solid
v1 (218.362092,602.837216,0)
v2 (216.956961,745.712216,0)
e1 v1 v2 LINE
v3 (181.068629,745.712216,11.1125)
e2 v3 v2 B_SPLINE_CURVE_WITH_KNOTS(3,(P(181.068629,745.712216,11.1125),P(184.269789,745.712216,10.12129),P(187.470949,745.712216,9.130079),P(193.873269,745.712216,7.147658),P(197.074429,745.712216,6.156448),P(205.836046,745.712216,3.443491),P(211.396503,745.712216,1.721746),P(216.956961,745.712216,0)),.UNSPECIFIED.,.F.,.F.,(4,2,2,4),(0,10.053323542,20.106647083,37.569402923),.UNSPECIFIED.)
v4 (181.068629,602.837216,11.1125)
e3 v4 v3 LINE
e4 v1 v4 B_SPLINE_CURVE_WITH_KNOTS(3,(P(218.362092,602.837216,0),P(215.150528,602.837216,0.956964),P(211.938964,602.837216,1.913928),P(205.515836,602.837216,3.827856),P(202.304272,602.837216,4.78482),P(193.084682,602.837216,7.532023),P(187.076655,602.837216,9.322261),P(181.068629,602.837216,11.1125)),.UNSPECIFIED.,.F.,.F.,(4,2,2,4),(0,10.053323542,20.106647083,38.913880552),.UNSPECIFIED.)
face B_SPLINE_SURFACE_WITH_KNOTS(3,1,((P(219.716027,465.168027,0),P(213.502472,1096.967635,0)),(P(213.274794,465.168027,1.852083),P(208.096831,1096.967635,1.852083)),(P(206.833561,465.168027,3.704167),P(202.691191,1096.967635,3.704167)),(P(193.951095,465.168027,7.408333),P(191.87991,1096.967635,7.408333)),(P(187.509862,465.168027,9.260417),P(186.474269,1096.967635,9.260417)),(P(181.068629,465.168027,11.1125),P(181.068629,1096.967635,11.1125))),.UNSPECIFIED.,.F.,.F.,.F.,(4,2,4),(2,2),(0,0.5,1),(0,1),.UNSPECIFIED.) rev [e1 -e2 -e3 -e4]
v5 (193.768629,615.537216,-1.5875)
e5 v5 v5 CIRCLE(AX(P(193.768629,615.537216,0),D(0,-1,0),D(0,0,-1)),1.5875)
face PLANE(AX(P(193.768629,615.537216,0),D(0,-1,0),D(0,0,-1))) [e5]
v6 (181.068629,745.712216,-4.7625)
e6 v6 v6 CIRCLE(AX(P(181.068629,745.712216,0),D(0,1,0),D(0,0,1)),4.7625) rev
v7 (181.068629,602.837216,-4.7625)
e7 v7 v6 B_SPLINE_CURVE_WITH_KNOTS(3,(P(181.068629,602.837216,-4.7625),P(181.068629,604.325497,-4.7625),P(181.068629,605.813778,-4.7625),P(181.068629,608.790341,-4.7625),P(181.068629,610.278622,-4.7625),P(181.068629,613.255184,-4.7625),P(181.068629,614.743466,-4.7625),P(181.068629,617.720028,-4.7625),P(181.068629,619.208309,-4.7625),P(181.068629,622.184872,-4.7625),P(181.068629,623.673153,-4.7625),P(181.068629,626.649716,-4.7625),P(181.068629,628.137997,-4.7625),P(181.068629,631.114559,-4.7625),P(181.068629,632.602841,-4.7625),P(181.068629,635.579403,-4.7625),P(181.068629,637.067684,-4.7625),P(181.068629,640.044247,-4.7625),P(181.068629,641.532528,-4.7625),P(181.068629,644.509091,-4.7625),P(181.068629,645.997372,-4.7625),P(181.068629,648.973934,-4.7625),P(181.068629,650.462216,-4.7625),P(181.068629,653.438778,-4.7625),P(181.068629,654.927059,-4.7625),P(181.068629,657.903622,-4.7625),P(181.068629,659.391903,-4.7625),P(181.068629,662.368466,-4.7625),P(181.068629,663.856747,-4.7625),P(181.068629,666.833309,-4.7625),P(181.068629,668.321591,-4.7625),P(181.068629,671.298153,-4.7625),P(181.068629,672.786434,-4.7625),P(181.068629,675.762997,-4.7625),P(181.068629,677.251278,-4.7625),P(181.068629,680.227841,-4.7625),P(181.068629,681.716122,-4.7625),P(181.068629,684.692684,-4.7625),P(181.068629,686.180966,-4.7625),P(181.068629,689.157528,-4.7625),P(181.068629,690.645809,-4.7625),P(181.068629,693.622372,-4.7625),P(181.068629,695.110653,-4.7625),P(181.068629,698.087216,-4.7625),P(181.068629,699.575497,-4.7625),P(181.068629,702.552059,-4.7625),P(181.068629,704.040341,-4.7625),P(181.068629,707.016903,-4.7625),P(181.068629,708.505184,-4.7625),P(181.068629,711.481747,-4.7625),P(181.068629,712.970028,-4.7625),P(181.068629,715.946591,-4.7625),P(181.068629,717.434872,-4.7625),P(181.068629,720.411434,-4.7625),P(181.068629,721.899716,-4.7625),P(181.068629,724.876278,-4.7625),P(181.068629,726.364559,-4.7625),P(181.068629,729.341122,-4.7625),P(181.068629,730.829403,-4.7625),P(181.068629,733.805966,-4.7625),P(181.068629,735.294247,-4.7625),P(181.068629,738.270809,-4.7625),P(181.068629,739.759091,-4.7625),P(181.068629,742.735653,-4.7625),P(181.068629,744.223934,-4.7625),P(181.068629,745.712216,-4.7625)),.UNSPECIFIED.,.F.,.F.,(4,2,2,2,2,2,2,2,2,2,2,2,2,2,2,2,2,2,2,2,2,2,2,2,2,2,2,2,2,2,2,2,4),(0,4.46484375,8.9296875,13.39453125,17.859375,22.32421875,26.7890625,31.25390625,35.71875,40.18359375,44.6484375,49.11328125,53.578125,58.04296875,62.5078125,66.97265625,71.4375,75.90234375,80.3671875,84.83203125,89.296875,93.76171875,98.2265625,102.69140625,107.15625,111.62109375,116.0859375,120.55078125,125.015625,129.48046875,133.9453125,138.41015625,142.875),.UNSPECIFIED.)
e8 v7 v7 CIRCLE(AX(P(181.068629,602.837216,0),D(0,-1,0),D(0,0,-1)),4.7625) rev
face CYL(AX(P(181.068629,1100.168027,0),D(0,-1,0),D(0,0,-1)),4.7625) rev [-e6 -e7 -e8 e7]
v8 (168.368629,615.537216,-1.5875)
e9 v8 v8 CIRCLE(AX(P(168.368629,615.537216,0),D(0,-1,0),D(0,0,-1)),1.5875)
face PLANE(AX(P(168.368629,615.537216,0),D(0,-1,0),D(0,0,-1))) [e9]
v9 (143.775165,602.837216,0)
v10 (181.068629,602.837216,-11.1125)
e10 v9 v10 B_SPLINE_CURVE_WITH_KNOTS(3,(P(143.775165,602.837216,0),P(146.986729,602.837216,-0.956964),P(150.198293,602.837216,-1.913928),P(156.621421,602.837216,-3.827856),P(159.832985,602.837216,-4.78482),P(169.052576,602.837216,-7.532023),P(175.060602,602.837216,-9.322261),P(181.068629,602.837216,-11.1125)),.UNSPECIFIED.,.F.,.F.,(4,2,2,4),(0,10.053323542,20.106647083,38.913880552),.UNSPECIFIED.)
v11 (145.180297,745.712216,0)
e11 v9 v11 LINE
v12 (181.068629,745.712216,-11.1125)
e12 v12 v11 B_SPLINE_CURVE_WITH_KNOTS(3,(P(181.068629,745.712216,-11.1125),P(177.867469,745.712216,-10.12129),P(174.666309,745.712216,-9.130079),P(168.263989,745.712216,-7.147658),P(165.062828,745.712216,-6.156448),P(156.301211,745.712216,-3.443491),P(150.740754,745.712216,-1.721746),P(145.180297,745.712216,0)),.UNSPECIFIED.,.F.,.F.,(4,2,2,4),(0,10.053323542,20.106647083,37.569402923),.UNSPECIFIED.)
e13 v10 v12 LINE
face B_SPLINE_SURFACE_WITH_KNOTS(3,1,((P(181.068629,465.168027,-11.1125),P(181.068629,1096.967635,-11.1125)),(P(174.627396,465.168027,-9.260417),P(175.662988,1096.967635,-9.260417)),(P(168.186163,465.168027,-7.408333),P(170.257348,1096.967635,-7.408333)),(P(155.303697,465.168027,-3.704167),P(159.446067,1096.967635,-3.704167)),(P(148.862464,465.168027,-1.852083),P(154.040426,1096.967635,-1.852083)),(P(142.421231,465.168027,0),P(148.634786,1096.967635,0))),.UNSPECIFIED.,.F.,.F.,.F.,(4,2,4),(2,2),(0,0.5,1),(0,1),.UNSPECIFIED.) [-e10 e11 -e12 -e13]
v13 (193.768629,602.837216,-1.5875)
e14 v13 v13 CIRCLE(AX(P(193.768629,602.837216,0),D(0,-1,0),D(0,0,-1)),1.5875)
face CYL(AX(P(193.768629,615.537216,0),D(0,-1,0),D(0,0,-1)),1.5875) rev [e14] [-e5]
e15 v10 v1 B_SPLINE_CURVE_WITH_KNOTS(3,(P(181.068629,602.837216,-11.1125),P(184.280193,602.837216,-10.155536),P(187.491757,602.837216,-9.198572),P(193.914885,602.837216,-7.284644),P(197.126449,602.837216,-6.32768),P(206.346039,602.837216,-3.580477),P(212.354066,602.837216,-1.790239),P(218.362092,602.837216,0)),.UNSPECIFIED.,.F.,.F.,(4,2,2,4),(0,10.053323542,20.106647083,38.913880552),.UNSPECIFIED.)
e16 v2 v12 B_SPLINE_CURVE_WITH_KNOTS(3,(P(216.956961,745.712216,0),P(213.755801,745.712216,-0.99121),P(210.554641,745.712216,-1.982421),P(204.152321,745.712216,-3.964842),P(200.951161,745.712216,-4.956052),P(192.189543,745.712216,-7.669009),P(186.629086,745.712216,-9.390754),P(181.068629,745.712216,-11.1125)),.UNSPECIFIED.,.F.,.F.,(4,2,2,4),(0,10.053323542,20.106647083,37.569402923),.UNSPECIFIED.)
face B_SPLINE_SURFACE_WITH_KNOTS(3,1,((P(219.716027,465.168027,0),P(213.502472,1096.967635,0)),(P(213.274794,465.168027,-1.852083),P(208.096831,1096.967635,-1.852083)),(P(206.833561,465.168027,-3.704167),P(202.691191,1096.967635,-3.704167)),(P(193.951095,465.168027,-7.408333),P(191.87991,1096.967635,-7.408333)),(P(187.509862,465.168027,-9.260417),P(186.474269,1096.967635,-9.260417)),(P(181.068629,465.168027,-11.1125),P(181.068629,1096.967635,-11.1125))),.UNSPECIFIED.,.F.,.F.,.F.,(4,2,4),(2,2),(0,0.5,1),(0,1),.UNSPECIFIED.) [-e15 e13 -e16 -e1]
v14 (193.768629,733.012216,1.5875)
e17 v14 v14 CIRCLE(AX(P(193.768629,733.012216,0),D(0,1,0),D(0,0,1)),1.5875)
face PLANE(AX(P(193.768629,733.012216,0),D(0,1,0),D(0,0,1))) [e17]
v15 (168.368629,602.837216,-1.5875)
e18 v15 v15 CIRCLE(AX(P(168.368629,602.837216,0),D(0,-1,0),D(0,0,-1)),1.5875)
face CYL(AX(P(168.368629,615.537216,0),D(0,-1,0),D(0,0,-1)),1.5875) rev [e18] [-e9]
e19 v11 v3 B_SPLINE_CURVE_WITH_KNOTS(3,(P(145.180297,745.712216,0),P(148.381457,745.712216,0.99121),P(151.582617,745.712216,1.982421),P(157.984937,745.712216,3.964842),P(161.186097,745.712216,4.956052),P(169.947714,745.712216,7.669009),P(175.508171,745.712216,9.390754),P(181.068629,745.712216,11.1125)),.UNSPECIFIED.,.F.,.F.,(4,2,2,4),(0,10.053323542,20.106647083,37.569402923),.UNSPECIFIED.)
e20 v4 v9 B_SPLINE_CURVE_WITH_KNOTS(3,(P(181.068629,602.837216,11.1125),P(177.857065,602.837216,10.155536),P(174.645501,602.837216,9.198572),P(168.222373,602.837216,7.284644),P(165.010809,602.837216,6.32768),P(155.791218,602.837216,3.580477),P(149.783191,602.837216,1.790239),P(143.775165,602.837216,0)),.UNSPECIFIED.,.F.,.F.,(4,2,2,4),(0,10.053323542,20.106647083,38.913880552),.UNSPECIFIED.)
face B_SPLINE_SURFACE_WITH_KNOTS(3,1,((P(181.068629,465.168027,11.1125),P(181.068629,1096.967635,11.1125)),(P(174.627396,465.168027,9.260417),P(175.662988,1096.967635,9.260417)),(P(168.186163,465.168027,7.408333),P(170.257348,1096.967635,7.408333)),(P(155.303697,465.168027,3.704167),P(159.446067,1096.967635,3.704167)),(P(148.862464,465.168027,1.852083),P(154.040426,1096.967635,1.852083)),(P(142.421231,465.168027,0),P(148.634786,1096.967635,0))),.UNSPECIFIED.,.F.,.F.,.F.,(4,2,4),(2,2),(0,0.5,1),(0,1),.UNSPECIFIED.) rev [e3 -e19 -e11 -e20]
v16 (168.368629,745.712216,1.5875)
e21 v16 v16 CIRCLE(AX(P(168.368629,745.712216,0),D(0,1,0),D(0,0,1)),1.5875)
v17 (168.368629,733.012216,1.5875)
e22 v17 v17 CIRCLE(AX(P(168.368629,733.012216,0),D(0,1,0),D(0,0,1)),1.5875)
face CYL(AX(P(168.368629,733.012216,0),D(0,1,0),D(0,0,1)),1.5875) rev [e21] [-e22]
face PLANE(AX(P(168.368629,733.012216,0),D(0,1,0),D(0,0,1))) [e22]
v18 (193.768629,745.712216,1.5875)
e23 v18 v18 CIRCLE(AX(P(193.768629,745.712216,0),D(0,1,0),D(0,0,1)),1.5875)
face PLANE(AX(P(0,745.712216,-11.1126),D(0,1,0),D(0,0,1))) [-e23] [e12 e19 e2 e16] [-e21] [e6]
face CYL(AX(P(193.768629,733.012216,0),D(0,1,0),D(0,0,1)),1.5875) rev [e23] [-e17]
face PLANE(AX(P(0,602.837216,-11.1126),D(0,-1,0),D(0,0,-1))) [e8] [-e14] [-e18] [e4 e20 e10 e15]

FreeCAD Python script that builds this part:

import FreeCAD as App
import Part
import Sketcher
from FreeCAD import Vector
Q = App.Units.Quantity


def add_polygon(sketch, points):
    """Adds a closed chain of lines whose ends are joined by coincident constraints."""
    first, n = sketch.GeometryCount, len(points)
    for a, b in zip(points, points[1:] + points[:1]):
        sketch.addGeometry(Part.LineSegment(App.Vector(*a, 0), App.Vector(*b, 0)), False)
    for i in range(n):
        sketch.addConstraint(Sketcher.Constraint("Coincident", first + i, 2, first + (i + 1) % n, 1))

doc = App.newDocument("Part")
body = doc.addObject("PartDesign::Body", "Body")

sketch1 = doc.addObject("Sketcher::SketchObject", "Sketch")
body.addObject(sketch1)
sketch1.AttachmentSupport = (doc.XY_Plane, [""])
sketch1.MapMode = "FlatFace"
add_polygon(sketch1, [(142, 465), (220, 465), (214, 1097), (181, 1174), (149, 1097)])
sketch1.addConstraint(Sketcher.Constraint("Horizontal", 0))
sketch1.addConstraint(Sketcher.Constraint("Horizontal", 1, 2, 3, 2))
sketch1.addConstraint(Sketcher.Constraint("Equal", 2, 3))
sketch1.addConstraint(Sketcher.Constraint("Equal", 1, 4))
sketch1.addConstraint(Sketcher.Constraint("Distance", 1, 631.830161))
sketch1.addConstraint(Sketcher.Constraint("DistanceX", 0, 1, 0, 2, 77.294796))
sketch1.addConstraint(Sketcher.Constraint("DistanceX", -1, 1, 1, 2, 213.502472))
sketch1.addConstraint(Sketcher.Constraint("DistanceX", -1, 1, 2, 2, 181.068629))
sketch1.addConstraint(Sketcher.Constraint("DistanceY", 1, 2, 2, 2, 77.369581))
sketch1.addConstraint(Sketcher.Constraint("DistanceY", -1, 1, 0, 2, 465.168027))
pad1 = doc.addObject("PartDesign::Pad", "Pad")
body.addObject(pad1)
pad1.Profile = sketch1
pad1.Type = "TwoLengths"
pad1.Length = Q("0.4375 in")
pad1.Length2 = Q("0.4375 in")

sketch2 = doc.addObject("Sketcher::SketchObject", "Sketch001")
body.addObject(sketch2)
sketch2.AttachmentSupport = (doc.XZ_Plane, [""])
sketch2.MapMode = "FlatFace"
sketch2.AttachmentOffset = App.Placement(Vector(0, 0, -465.168027), App.Rotation())
add_polygon(sketch2, [(142.4, 0), (181.1, 11.1), (219.7, 0), (222.7, 0), (222.7, 15.3), (137.8, 15.3), (137.8, 0)])
sketch2.addConstraint(Sketcher.Constraint("Horizontal", 2))
sketch2.addConstraint(Sketcher.Constraint("Vertical", 3))
sketch2.addConstraint(Sketcher.Constraint("Horizontal", 4))
sketch2.addConstraint(Sketcher.Constraint("Vertical", 5))
sketch2.addConstraint(Sketcher.Constraint("Horizontal", 6))
sketch2.addConstraint(Sketcher.Constraint("PointOnObject", 1, 2, -1))
sketch2.addConstraint(Sketcher.Constraint("PointOnObject", 5, 2, -1))
sketch2.addConstraint(Sketcher.Constraint("Equal", 0, 1))
sketch2.addConstraint(Sketcher.Constraint("DistanceY", -1, 1, 0, 2, Q("0.4375 in")))
sketch2.addConstraint(Sketcher.Constraint("DistanceX", 2, 1, 2, 2, 2.989111))
sketch2.addConstraint(Sketcher.Constraint("DistanceX", 4, 2, 4, 1, 84.85651))
sketch2.addConstraint(Sketcher.Constraint("DistanceX", 4, 2, 0, 2, 43.22))
sketch2.addConstraint(Sketcher.Constraint("DistanceY", 3, 1, 3, 2, 15.258366))
sketch2.addConstraint(Sketcher.Constraint("DistanceX", -1, 1, 0, 2, 181.068629))

sketch3 = doc.addObject("Sketcher::SketchObject", "Sketch002")
body.addObject(sketch3)
sketch3.AttachmentSupport = (doc.XZ_Plane, [""])
sketch3.MapMode = "FlatFace"
sketch3.AttachmentOffset = App.Placement(Vector(0, 0, -1096.967635), App.Rotation())
add_polygon(sketch3, [(214, 0), (181, 11), (149, 0), (138, 0), (138, 15), (223, 15), (223, 0)])
sketch3.addConstraint(Sketcher.Constraint("Horizontal", 2))
sketch3.addConstraint(Sketcher.Constraint("Vertical", 3))
sketch3.addConstraint(Sketcher.Constraint("Horizontal", 4))
sketch3.addConstraint(Sketcher.Constraint("Vertical", 5))
sketch3.addConstraint(Sketcher.Constraint("Horizontal", 6))
sketch3.addConstraint(Sketcher.Constraint("PointOnObject", 1, 2, -1))
sketch3.addConstraint(Sketcher.Constraint("PointOnObject", 5, 2, -1))
sketch3.addConstraint(Sketcher.Constraint("Equal", 0, 1))
sketch3.addConstraint(Sketcher.Constraint("DistanceY", -1, 1, 0, 2, Q("0.4375 in")))
sketch3.addConstraint(Sketcher.Constraint("DistanceX", 4, 1, 4, 2, 84.85651))
sketch3.addConstraint(Sketcher.Constraint("DistanceX", 2, 2, 0, 2, 43.22))
sketch3.addConstraint(Sketcher.Constraint("DistanceX", 2, 2, 2, 1, 10.786158))
sketch3.addConstraint(Sketcher.Constraint("DistanceY", 3, 1, 3, 2, 15.258366))
sketch3.addConstraint(Sketcher.Constraint("DistanceX", -1, 1, 0, 2, 181.068629))

subtractiveloft = doc.addObject("PartDesign::SubtractiveLoft", "SubtractiveLoft")
body.addObject(subtractiveloft)
subtractiveloft.Profile = sketch2
subtractiveloft.Sections = [sketch3]
doc.recompute()

mirrored = doc.addObject("PartDesign::Mirrored", "Mirrored")
body.addObject(mirrored)
mirrored.Originals = [subtractiveloft]
mirrored.MirrorPlane = (doc.XY_Plane, [""])
body.Tip = mirrored

sketch4 = doc.addObject("Sketcher::SketchObject", "Sketch003")
body.addObject(sketch4)
sketch4.Placement = App.Placement(Vector(-32.103098, 13.457832, 93.698704), App.Rotation(Vector(0.9470206, 0.045661094, 0.317910438), Vector(0, 0.989842276, -0.142169857), Vector(-0.321172823, 0.134637783, 0.937401027), "ZXY"))
add_polygon(sketch4, [(164, 1281), (164, 998), (274, 998), (274, 1281)])
sketch4.addConstraint(Sketcher.Constraint("Vertical", 0))
sketch4.addConstraint(Sketcher.Constraint("Horizontal", 1))
sketch4.addConstraint(Sketcher.Constraint("Vertical", 2))
sketch4.addConstraint(Sketcher.Constraint("Horizontal", 3))
sketch4.addConstraint(Sketcher.Constraint("DistanceX", 1, 1, 1, 2, 109.877469))
sketch4.addConstraint(Sketcher.Constraint("DistanceY", 0, 2, 0, 1, 283.051122))
sketch4.addConstraint(Sketcher.Constraint("DistanceX", -1, 1, 0, 2, 164.41051))
sketch4.addConstraint(Sketcher.Constraint("DistanceY", -1, 1, 0, 2, 997.778163))
pocket1 = doc.addObject("PartDesign::Pocket", "Pocket")
body.addObject(pocket1)
pocket1.Profile = sketch4
pocket1.Type = "ThroughAll"
pocket1.Reversed = True

sketch5 = doc.addObject("Sketcher::SketchObject", "Sketch004")
body.addObject(sketch5)
sketch5.Placement = App.Placement(Vector(69.458274, 29.117371, 202.726548), App.Rotation(Vector(0.9470206, -0.045661094, -0.317910438), Vector(0, 0.989842276, -0.142169857), Vector(0.321172823, 0.134637783, 0.937401027), "ZXY"))
add_polygon(sketch5, [(57, 1173), (57, 1064), (206, 1064), (206, 1173)])
sketch5.addConstraint(Sketcher.Constraint("Vertical", 0))
sketch5.addConstraint(Sketcher.Constraint("Horizontal", 1))
sketch5.addConstraint(Sketcher.Constraint("Vertical", 2))
sketch5.addConstraint(Sketcher.Constraint("Horizontal", 3))
sketch5.addConstraint(Sketcher.Constraint("DistanceY", 0, 2, 0, 1, 108.921762))
sketch5.addConstraint(Sketcher.Constraint("DistanceX", 1, 1, 1, 2, 149.121483))
sketch5.addConstraint(Sketcher.Constraint("DistanceY", -1, 1, 0, 2, 1064.46137))
sketch5.addConstraint(Sketcher.Constraint("DistanceX", -1, 1, 1, 2, 206.313558))
pocket2 = doc.addObject("PartDesign::Pocket", "Pocket001")
body.addObject(pocket2)
pocket2.Profile = sketch5
pocket2.Type = "ThroughAll"
pocket2.Reversed = True
doc.recompute()

mirrored2 = doc.addObject("PartDesign::Mirrored", "Mirrored001")
body.addObject(mirrored2)
mirrored2.Originals = [pocket1, pocket2]
mirrored2.MirrorPlane = (doc.XY_Plane, [""])
body.Tip = mirrored2

sketch6 = doc.addObject("Sketcher::SketchObject", "Sketch005")
body.addObject(sketch6)
sketch6.AttachmentSupport = (doc.XZ_Plane, [""])
sketch6.MapMode = "FlatFace"
sketch6.AttachmentOffset = App.Placement(Vector(0, 0, -465.168027), App.Rotation())
sketch6.addGeometry(Part.Circle(Vector(181.1, 0, 0), Vector(0, 0, 1), 4.8), False)
sketch6.addConstraint(Sketcher.Constraint("PointOnObject", 0, 3, -1))
sketch6.addConstraint(Sketcher.Constraint("Diameter", 0, Q("0.375 in")))
sketch6.addConstraint(Sketcher.Constraint("DistanceX", -1, 1, 0, 3, 181.068629))
pocket3 = doc.addObject("PartDesign::Pocket", "Pocket002")
body.addObject(pocket3)
pocket3.Profile = sketch6
pocket3.Length = Q("25 in")

sketch7 = doc.addObject("Sketcher::SketchObject", "Sketch006")
body.addObject(sketch7)
sketch7.AttachmentSupport = (doc.XY_Plane, [""])
sketch7.MapMode = "FlatFace"
add_polygon(sketch7, [(106, 603), (106, 454), (255, 454), (255, 603)])
add_polygon(sketch7, [(106, 746), (255, 746), (255, 1208), (106, 1208)])
sketch7.addConstraint(Sketcher.Constraint("Vertical", 0))
sketch7.addConstraint(Sketcher.Constraint("Horizontal", 1))
sketch7.addConstraint(Sketcher.Constraint("Vertical", 2))
sketch7.addConstraint(Sketcher.Constraint("Horizontal", 3))
sketch7.addConstraint(Sketcher.Constraint("Horizontal", 4))
sketch7.addConstraint(Sketcher.Constraint("Vertical", 5))
sketch7.addConstraint(Sketcher.Constraint("Horizontal", 6))
sketch7.addConstraint(Sketcher.Constraint("Vertical", 7))
sketch7.addConstraint(Sketcher.Constraint("Vertical", 2, 2, 4, 2))
sketch7.addConstraint(Sketcher.Constraint("Vertical", 3, 2, 6, 2))
sketch7.addConstraint(Sketcher.Constraint("DistanceY", 2, 2, 4, 2, Q("5.625 in")))
sketch7.addConstraint(Sketcher.Constraint("DistanceX", 1, 1, 1, 2, 149.77475))
sketch7.addConstraint(Sketcher.Constraint("DistanceY", 0, 2, 0, 1, 148.832771))
sketch7.addConstraint(Sketcher.Constraint("DistanceY", 5, 1, 5, 2, 461.875879))
sketch7.addConstraint(Sketcher.Constraint("DistanceX", -1, 1, 0, 2, 105.710264))
sketch7.addConstraint(Sketcher.Constraint("DistanceY", -1, 1, 0, 2, 454.004445))
pocket4 = doc.addObject("PartDesign::Pocket", "Pocket003")
body.addObject(pocket4)
pocket4.Profile = sketch7
pocket4.Type = "ThroughAll"
pocket4.Midplane = True

sketch8 = doc.addObject("Sketcher::SketchObject", "Sketch007")
body.addObject(sketch8)
sketch8.AttachmentSupport = (doc.XZ_Plane, [""])
sketch8.MapMode = "FlatFace"
sketch8.AttachmentOffset = App.Placement(Vector(0, 0, -745.712216), App.Rotation())
sketch8.addGeometry(Part.Circle(Vector(168.4, 0, 0), Vector(0, 0, 1), 1.6), False)
sketch8.addGeometry(Part.Circle(Vector(193.8, 0, 0), Vector(0, 0, 1), 1.6), False)
sketch8.addConstraint(Sketcher.Constraint("Equal", 0, 1))
sketch8.addConstraint(Sketcher.Constraint("PointOnObject", 0, 3, -1))
sketch8.addConstraint(Sketcher.Constraint("PointOnObject", 1, 3, -1))
sketch8.addConstraint(Sketcher.Constraint("Diameter", 0, Q("0.125 in")))
sketch8.addConstraint(Sketcher.Constraint("DistanceX", 0, 3, 1, 3, Q("1 in")))
sketch8.addConstraint(Sketcher.Constraint("DistanceX", -1, 1, 0, 3, 168.368629))
pocket5 = doc.addObject("PartDesign::Pocket", "Pocket004")
body.addObject(pocket5)
pocket5.Profile = sketch8
pocket5.Length = Q("0.5 in")
pocket5.Reversed = True

sketch9 = doc.addObject("Sketcher::SketchObject", "Sketch008")
body.addObject(sketch9)
sketch9.AttachmentSupport = (doc.XZ_Plane, [""])
sketch9.MapMode = "FlatFace"
sketch9.AttachmentOffset = App.Placement(Vector(0, 0, -615.537216), App.Rotation())
sketch9.addGeometry(Part.Circle(Vector(168.4, 0, 0), Vector(0, 0, 1), 1.6), False)
sketch9.addGeometry(Part.Circle(Vector(193.8, 0, 0), Vector(0, 0, 1), 1.6), False)
sketch9.addConstraint(Sketcher.Constraint("Equal", 0, 1))
sketch9.addConstraint(Sketcher.Constraint("PointOnObject", 0, 3, -1))
sketch9.addConstraint(Sketcher.Constraint("PointOnObject", 1, 3, -1))
sketch9.addConstraint(Sketcher.Constraint("Diameter", 0, Q("0.125 in")))
sketch9.addConstraint(Sketcher.Constraint("DistanceX", 0, 3, 1, 3, Q("1 in")))
sketch9.addConstraint(Sketcher.Constraint("DistanceX", -1, 1, 0, 3, 168.368629))
pocket6 = doc.addObject("PartDesign::Pocket", "Pocket005")
body.addObject(pocket6)
pocket6.Profile = sketch9
pocket6.Length = Q("0.5 in")
pocket6.Reversed = True

doc.recompute()
